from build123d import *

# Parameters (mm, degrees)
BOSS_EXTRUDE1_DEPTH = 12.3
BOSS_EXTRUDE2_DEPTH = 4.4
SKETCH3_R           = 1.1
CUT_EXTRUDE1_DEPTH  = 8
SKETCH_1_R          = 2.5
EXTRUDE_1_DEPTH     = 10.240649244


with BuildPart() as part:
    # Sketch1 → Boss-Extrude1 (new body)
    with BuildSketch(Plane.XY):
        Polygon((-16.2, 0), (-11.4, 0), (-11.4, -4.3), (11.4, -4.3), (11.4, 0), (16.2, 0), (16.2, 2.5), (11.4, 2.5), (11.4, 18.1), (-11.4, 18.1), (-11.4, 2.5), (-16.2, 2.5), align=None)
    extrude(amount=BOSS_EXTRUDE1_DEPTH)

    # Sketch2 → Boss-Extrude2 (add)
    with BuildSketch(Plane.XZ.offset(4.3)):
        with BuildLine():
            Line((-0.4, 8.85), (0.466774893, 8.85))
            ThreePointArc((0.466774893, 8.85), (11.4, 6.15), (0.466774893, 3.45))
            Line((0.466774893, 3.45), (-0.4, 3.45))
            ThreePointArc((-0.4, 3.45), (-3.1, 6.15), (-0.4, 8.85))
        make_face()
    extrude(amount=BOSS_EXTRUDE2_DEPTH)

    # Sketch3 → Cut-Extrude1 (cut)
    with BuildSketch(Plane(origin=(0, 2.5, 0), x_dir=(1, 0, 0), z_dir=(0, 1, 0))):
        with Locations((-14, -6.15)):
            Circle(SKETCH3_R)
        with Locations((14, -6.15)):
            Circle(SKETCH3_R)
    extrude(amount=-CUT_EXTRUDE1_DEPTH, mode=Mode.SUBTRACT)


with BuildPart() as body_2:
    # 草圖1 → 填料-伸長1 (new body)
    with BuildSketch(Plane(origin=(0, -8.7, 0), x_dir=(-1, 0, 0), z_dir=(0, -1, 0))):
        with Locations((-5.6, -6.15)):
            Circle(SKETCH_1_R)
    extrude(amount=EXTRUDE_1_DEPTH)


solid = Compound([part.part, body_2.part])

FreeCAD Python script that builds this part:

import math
import FreeCAD as App
import Part
import Sketcher
from FreeCAD import Vector


def add_polygon(sketch, points):
    """Adds a closed chain of lines whose ends are joined by coincident constraints."""
    first, n = sketch.GeometryCount, len(points)
    for a, b in zip(points, points[1:] + points[:1]):
        sketch.addGeometry(Part.LineSegment(App.Vector(*a, 0), App.Vector(*b, 0)), False)
    for i in range(n):
        sketch.addConstraint(Sketcher.Constraint("Coincident", first + i, 2, first + (i + 1) % n, 1))

doc = App.newDocument("Part")
body = doc.addObject("PartDesign::Body", "Body")

sketch1 = doc.addObject("Sketcher::SketchObject", "Sketch")
body.addObject(sketch1)
sketch1.AttachmentSupport = (doc.XY_Plane, [""])
sketch1.MapMode = "FlatFace"
add_polygon(sketch1, [(-16.2, 0), (-11.4, 0), (-11.4, -4.3), (11.4, -4.3), (11.4, 0), (16.2, 0), (16.2, 2.5), (11.4, 2.5), (11.4, 18.1), (-11.4, 18.1), (-11.4, 2.5), (-16.2, 2.5)])
sketch1.addConstraint([
    Sketcher.Constraint("Horizontal", 0),
    Sketcher.Constraint("Vertical", 1),
    Sketcher.Constraint("Horizontal", 2),
    Sketcher.Constraint("Vertical", 3),
    Sketcher.Constraint("Horizontal", 4),
    Sketcher.Constraint("Vertical", 5),
    Sketcher.Constraint("Horizontal", 6),
    Sketcher.Constraint("Vertical", 7),
    Sketcher.Constraint("Horizontal", 8),
    Sketcher.Constraint("Vertical", 9),
    Sketcher.Constraint("Horizontal", 10),
    Sketcher.Constraint("Vertical", 11),
    Sketcher.Constraint("Symmetric", 0, 2, 3, 2, -1, 1),
    Sketcher.Constraint("Symmetric", 6, 2, 9, 2, -2),
    Sketcher.Constraint("Symmetric", 4, 2, 11, 2, -2),
    Sketcher.Constraint("Vertical", 3, 2, 6, 2),
    Sketcher.Constraint("DistanceX", 0, 1, 0, 2, 4.8),
    Sketcher.Constraint("DistanceX", 2, 1, 2, 2, 22.8),
    Sketcher.Constraint("DistanceY", 1, 2, 1, 1, 4.3),
    Sketcher.Constraint("DistanceY", 5, 1, 5, 2, 2.5),
    Sketcher.Constraint("DistanceY", 7, 1, 7, 2, 15.6),
])
pad1 = doc.addObject("PartDesign::Pad", "Pad")
body.addObject(pad1)
pad1.Profile = sketch1
pad1.Length = 12.3

sketch2 = doc.addObject("Sketcher::SketchObject", "Sketch001")
body.addObject(sketch2)
sketch2.AttachmentSupport = (doc.XZ_Plane, [""])
sketch2.MapMode = "FlatFace"
sketch2.AttachmentOffset = App.Placement(Vector(0, 0, 4.3), App.Rotation())
sketch2.addGeometry([
    Part.LineSegment(Vector(0.5, 8.8, 0), Vector(-0.4, 8.8, 0)),
    Part.ArcOfCircle(Part.Circle(Vector(-0.4, 6.2, 0), Vector(0, 0, 1), 2.7), math.radians(90), math.radians(270)),
    Part.LineSegment(Vector(-0.4, 3.5, 0), Vector(0.5, 3.5, 0)),
    Part.ArcOfCircle(Part.Circle(Vector(5.6, 6.2, 0), Vector(0, 0, 1), 5.8), math.radians(-152), math.radians(152)),
], False)
sketch2.addConstraint([
    Sketcher.Constraint("Tangent", 0, 2, 1, 1),
    Sketcher.Constraint("Tangent", 1, 2, 2, 1),
    Sketcher.Constraint("Coincident", 2, 2, 3, 1),
    Sketcher.Constraint("Coincident", 3, 2, 0, 1),
    Sketcher.Constraint("Horizontal", 0),
    Sketcher.Constraint("Horizontal", 2),
    Sketcher.Constraint("Horizontal", 1, 3, 3, 3),
    Sketcher.Constraint("Radius", 1, 2.7),
    Sketcher.Constraint("Radius", 3, 5.8),
    Sketcher.Constraint("DistanceX", 1, 3, 3, 3, 6.0),
    Sketcher.Constraint("DistanceX", 1, 3, -1, 1, 0.4),
    Sketcher.Constraint("DistanceY", -1, 1, 1, 3, 6.15),
])
pad2 = doc.addObject("PartDesign::Pad", "Pad001")
body.addObject(pad2)
pad2.Profile = sketch2
pad2.Length = 4.4

sketch3 = doc.addObject("Sketcher::SketchObject", "Sketch002")
body.addObject(sketch3)
sketch3.AttachmentSupport = (doc.XZ_Plane, [""])
sketch3.MapMode = "FlatFace"
sketch3.AttachmentOffset = App.Placement(Vector(0, 0, -2.5), App.Rotation())
sketch3.addGeometry([
    Part.Circle(Vector(-14, 6.2, 0), Vector(0, 0, 1), 1.1),
    Part.Circle(Vector(14, 6.2, 0), Vector(0, 0, 1), 1.1),
], False)
sketch3.addConstraint([
    Sketcher.Constraint("Equal", 0, 1),
    Sketcher.Constraint("Symmetric", 0, 3, 1, 3, -2),
    Sketcher.Constraint("Diameter", 0, 2.2),
    Sketcher.Constraint("DistanceX", 0, 3, -1, 1, 14.0),
    Sketcher.Constraint("DistanceY", -1, 1, 0, 3, 6.15),
])
pocket1 = doc.addObject("PartDesign::Pocket", "Pocket")
body.addObject(pocket1)
pocket1.Profile = sketch3
pocket1.Length = 8
pocket1.Reversed = True
body2 = doc.addObject("PartDesign::Body", "Body001")

sketch4 = doc.addObject("Sketcher::SketchObject", "Sketch003")
body2.addObject(sketch4)
sketch4.AttachmentSupport = (doc.getObject("XZ_Plane001"), [""])
sketch4.MapMode = "FlatFace"
sketch4.AttachmentOffset = App.Placement(Vector(0, 0, 8.7), App.Rotation())
sketch4.addGeometry(Part.Circle(Vector(5.6, 6.2, 0), Vector(0, 0, 1), 2.5), False)
sketch4.addConstraint([
    Sketcher.Constraint("Diameter", 0, 5.0),
    Sketcher.Constraint("DistanceX", -1, 1, 0, 3, 5.6),
    Sketcher.Constraint("DistanceY", -1, 1, 0, 3, 6.15),
])
pad3 = doc.addObject("PartDesign::Pad", "Pad002")
body2.addObject(pad3)
pad3.Profile = sketch4
pad3.Length = 10.240649

doc.recompute()
